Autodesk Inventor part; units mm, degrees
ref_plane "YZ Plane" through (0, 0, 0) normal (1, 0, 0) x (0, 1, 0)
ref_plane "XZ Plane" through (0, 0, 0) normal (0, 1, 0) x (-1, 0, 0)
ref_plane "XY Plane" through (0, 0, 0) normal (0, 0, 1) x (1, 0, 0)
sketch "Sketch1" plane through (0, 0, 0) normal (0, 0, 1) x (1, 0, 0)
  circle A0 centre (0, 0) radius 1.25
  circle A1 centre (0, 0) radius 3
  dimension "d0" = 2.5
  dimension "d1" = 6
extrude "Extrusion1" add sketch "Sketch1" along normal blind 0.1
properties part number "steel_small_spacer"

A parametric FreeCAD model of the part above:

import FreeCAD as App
import Part
import Sketcher

doc = App.newDocument("Part")
params = doc.addObject("Spreadsheet::Sheet", "Params")
for row, (alias, value) in enumerate([
    ("sketch1_diameter", "6 mm"),
    ("sketch1_diameter2", "2.5 mm"),
    ("pad1_length", "0.1 mm"),
], start=1):
    params.set(f"A{row}", alias)
    params.set(f"B{row}", "=" + value)
    params.setAlias(f"B{row}", alias)

body = doc.addObject("PartDesign::Body", "Body")

sketch1 = body.newObject("Sketcher::SketchObject", "Sketch")
sketch1.AttachmentSupport = (doc.getObject("XY_Plane"), [""])
sketch1.MapMode = "FlatFace"
sketch1.addGeometry(Part.Circle(App.Vector(0, 0, 0), App.Vector(0, 0, 1), 3), False)
sketch1.addGeometry(Part.Circle(App.Vector(0, 0, 0), App.Vector(0, 0, 1), 1.2), False)
sketch1.addConstraint(Sketcher.Constraint("Coincident", 0, 3, -1, 1))
sketch1.addConstraint(Sketcher.Constraint("Coincident", 1, 3, -1, 1))
sketch1.addConstraint(Sketcher.Constraint("Diameter", 0, 6.0))
sketch1.addConstraint(Sketcher.Constraint("Diameter", 1, 2.5))
sketch1.setExpression("Constraints[2]", "Params.sketch1_diameter")
sketch1.setExpression("Constraints[3]", "Params.sketch1_diameter2")
pad1 = body.newObject("PartDesign::Pad", "Pad")
pad1.Profile = sketch1
pad1.setExpression("Length", "Params.pad1_length")

doc.recompute()
